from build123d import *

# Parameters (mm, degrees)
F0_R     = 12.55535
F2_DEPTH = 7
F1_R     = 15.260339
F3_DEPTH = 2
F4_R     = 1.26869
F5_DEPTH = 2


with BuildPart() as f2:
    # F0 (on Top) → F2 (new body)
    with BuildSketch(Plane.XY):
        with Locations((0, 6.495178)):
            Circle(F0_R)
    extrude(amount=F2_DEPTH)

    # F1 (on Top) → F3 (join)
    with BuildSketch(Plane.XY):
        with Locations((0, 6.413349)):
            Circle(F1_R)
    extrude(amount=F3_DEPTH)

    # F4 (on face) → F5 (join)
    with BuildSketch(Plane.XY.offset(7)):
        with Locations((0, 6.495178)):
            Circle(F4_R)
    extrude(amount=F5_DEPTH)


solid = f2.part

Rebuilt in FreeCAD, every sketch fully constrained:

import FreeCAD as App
import Part
import Sketcher

V = App.Vector
Q = App.Units.Quantity

doc = App.newDocument("Part")
body = doc.addObject("PartDesign::Body", "Body")

# Sketch on XY plane
sketch1 = doc.addObject("Sketcher::SketchObject", "Sketch")
body.addObject(sketch1)
sketch1.AttachmentSupport = (doc.XY_Plane, [""])
sketch1.MapMode = "FlatFace"
sketch1.addGeometry(Part.Circle(V(0, 6, 0), V(0, 0, 1), 13), False)
sketch1.addConstraint([
    Sketcher.Constraint("PointOnObject", 0, 3, -2),
    Sketcher.Constraint("Diameter", 0, Q("25.1107 mm")),
    Sketcher.Constraint("DistanceY", -1, 1, 0, 3, Q("6.495178 mm")),
])
pad1 = doc.addObject("PartDesign::Pad", "Pad")
body.addObject(pad1)
pad1.Profile = sketch1
pad1.Length = 7

# Sketch on XY plane
sketch2 = doc.addObject("Sketcher::SketchObject", "Sketch001")
body.addObject(sketch2)
sketch2.AttachmentSupport = (doc.XY_Plane, [""])
sketch2.MapMode = "FlatFace"
sketch2.addGeometry(Part.Circle(V(0, 6, 0), V(0, 0, 1), 15), False)
sketch2.addConstraint([
    Sketcher.Constraint("PointOnObject", 0, 3, -2),
    Sketcher.Constraint("Diameter", 0, Q("30.520678 mm")),
    Sketcher.Constraint("DistanceY", -1, 1, 0, 3, Q("6.413349 mm")),
])
pad2 = doc.addObject("PartDesign::Pad", "Pad001")
body.addObject(pad2)
pad2.Profile = sketch2
pad2.Length = 2

# Sketch on XY plane
sketch3 = doc.addObject("Sketcher::SketchObject", "Sketch002")
body.addObject(sketch3)
sketch3.AttachmentSupport = (doc.XY_Plane, [""])
sketch3.MapMode = "FlatFace"
sketch3.AttachmentOffset = App.Placement(V(0, 0, 7), App.Rotation())
sketch3.addGeometry(Part.Circle(V(0, 6.5, 0), V(0, 0, 1), 1.3), False)
sketch3.addConstraint([
    Sketcher.Constraint("PointOnObject", 0, 3, -2),
    Sketcher.Constraint("Diameter", 0, Q("2.53738 mm")),
    Sketcher.Constraint("DistanceY", -1, 1, 0, 3, Q("6.495178 mm")),
])
pad3 = doc.addObject("PartDesign::Pad", "Pad002")
body.addObject(pad3)
pad3.Profile = sketch3
pad3.Length = 2

doc.recompute()
